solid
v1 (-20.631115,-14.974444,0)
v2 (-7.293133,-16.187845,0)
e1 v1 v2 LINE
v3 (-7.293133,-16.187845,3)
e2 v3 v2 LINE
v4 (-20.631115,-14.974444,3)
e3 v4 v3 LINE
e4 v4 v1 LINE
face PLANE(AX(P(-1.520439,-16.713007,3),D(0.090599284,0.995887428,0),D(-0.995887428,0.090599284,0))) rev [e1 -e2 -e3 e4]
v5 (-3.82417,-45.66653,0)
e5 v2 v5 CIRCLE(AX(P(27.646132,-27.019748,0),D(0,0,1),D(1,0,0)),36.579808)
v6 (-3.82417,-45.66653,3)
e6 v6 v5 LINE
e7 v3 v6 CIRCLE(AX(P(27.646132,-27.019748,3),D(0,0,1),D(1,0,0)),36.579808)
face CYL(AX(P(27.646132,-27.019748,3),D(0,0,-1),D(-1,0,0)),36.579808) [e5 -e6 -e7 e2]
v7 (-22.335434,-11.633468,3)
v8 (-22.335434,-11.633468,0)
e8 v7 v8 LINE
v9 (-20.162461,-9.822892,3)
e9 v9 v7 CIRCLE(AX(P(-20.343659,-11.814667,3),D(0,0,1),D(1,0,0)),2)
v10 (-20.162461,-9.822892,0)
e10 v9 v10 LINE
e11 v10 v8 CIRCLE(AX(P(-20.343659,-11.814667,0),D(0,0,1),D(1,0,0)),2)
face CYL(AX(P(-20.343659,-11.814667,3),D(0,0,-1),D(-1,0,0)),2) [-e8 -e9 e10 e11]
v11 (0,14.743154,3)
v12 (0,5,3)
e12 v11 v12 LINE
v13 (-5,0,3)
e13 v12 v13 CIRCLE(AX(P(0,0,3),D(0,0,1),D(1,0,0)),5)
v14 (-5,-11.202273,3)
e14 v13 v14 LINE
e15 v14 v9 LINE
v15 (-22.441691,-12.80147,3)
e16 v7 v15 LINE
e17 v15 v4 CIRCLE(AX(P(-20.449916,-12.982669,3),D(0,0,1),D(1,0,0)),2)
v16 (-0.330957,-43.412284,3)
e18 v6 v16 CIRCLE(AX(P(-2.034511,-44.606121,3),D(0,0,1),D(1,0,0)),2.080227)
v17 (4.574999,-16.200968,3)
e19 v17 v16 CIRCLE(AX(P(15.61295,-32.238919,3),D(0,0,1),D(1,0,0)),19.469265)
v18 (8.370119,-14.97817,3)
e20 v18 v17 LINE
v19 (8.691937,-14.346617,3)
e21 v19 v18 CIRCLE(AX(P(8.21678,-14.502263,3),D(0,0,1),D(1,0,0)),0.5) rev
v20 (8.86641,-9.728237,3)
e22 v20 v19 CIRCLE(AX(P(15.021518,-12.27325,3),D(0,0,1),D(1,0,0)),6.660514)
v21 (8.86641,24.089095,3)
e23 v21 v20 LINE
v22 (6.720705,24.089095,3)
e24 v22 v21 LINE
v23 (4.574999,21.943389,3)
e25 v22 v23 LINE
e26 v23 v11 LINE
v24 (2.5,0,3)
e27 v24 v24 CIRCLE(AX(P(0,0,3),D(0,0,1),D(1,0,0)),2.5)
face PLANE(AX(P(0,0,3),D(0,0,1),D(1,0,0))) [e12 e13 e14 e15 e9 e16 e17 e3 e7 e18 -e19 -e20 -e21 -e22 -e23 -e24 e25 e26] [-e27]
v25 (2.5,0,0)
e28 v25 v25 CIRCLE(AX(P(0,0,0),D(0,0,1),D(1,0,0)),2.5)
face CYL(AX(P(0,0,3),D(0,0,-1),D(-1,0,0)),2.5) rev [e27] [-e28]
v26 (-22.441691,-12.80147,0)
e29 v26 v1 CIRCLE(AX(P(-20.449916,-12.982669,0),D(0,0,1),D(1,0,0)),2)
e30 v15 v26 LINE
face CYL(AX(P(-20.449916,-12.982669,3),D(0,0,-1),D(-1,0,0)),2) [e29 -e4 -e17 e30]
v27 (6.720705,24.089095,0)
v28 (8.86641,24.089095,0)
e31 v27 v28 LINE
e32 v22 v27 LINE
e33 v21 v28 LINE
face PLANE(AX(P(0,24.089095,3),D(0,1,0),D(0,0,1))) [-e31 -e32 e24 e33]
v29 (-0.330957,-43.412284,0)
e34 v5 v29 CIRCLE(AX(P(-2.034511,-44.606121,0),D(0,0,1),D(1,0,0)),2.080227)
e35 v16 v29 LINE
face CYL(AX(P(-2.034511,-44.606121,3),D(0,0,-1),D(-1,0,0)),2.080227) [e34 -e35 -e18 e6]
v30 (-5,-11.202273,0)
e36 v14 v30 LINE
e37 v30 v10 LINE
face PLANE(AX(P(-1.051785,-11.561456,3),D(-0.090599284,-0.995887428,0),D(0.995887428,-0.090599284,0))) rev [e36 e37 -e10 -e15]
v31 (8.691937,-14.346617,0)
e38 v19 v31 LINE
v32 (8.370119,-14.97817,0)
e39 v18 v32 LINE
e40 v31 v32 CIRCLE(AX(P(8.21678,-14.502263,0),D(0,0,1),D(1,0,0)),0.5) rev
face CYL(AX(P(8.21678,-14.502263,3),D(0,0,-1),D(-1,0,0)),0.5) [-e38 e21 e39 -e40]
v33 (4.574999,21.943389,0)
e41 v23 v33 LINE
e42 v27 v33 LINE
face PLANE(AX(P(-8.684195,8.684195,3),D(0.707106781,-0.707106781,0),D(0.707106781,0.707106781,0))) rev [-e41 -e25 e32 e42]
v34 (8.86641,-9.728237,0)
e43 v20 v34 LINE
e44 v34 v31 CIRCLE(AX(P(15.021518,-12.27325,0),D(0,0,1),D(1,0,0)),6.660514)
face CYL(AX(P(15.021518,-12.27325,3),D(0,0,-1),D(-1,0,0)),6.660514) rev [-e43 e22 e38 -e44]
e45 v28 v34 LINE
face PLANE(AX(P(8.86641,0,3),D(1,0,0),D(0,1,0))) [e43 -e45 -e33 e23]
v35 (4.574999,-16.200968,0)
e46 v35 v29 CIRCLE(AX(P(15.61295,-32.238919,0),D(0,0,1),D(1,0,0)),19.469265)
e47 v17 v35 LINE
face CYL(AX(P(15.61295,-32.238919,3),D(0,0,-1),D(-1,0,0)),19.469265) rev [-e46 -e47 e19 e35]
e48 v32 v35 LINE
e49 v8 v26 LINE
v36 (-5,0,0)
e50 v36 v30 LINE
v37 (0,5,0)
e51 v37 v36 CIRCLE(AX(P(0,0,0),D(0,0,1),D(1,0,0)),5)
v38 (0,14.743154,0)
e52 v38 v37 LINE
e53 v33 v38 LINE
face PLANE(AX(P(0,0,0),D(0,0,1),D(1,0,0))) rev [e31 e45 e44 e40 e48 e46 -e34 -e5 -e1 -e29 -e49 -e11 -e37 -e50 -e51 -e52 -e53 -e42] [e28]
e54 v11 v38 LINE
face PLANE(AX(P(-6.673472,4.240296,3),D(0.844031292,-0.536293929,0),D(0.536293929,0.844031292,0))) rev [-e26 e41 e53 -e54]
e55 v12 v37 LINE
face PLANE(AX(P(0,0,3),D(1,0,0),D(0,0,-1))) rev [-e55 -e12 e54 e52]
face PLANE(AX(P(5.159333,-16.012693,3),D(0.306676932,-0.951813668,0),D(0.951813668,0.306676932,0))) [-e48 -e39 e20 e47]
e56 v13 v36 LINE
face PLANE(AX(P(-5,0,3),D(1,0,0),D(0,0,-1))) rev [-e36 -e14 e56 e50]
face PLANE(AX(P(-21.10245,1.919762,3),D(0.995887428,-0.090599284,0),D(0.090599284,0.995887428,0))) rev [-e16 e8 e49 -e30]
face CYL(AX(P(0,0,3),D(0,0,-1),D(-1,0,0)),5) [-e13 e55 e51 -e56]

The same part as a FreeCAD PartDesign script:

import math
import FreeCAD as App
import Part
import Sketcher

V = App.Vector
Q = App.Units.Quantity

doc = App.newDocument("Part")
body = doc.addObject("PartDesign::Body", "Body")

sketch1 = body.newObject("Sketcher::SketchObject", "Sketch")
sketch1.AttachmentSupport = (doc.getObject("XY_Plane"), [""])
sketch1.MapMode = "FlatFace"
sketch1.addGeometry([
    Part.LineSegment(V(4.574999, 21.943389, 0), V(0, 14.743154, 0)),
    Part.LineSegment(V(0, 14.743154, 0), V(0, 5, 0)),
    Part.ArcOfCircle(Part.Circle(V(0, 0, 0), V(0, 0, 1), 5), math.radians(90), math.radians(180)),
    Part.LineSegment(V(-5, 0, 0), V(-5, -11.202273, 0)),
    Part.LineSegment(V(-5, -11.202273, 0), V(-20.162461, -9.822892, 0)),
    Part.ArcOfCircle(Part.Circle(V(-20.343659, -11.814667, 0), V(0, 0, 1), 2), math.radians(84.801916), math.radians(174.801916)),
    Part.LineSegment(V(-22.335434, -11.633468, 0), V(-22.441691, -12.80147, 0)),
    Part.ArcOfCircle(Part.Circle(V(-20.449916, -12.982669, 0), V(0, 0, 1), 2), math.radians(174.801916), math.radians(264.801916)),
    Part.LineSegment(V(-20.631115, -14.974444, 0), V(-7.293133, -16.187845, 0)),
    Part.ArcOfCircle(Part.Circle(V(27.646132, -27.019748, 0), V(0, 0, 1), 36.579808), math.radians(162.775472), math.radians(210.647588)),
    Part.ArcOfCircle(Part.Circle(V(-2.034511, -44.606121, 0), V(0, 0, 1), 2.080227), math.radians(-149.352412), math.radians(35.022469)),
    Part.ArcOfCircle(Part.Circle(V(15.61295, -32.238919, 0), V(0, 0, 1), 19.469265), math.radians(124.537284), math.radians(215.022469)),
    Part.LineSegment(V(4.574999, -16.200968, 0), V(8.370119, -14.97817, 0)),
    Part.ArcOfCircle(Part.Circle(V(8.21678, -14.502263, 0), V(0, 0, 1), 0.5), math.radians(-72.140919), math.radians(18.137128)),
    Part.ArcOfCircle(Part.Circle(V(15.021518, -12.27325, 0), V(0, 0, 1), 6.660514), math.radians(157.535891), math.radians(198.137128)),
    Part.LineSegment(V(8.86641, -9.728237, 0), V(8.86641, 24.089095, 0)),
    Part.LineSegment(V(8.86641, 24.089095, 0), V(6.720705, 24.089095, 0)),
    Part.LineSegment(V(6.720705, 24.089095, 0), V(4.574999, 21.943389, 0)),
    Part.Circle(V(0, 0, 0), V(0, 0, 1), 2.5),
], False)
sketch1.addConstraint([
    Sketcher.Constraint("Coincident", 0, 2, 1, 1),
    Sketcher.Constraint("Coincident", 1, 2, 2, 1),
    Sketcher.Constraint("Coincident", 2, 2, 3, 1),
    Sketcher.Constraint("Coincident", 3, 2, 4, 1),
    Sketcher.Constraint("Coincident", 4, 2, 5, 1),
    Sketcher.Constraint("Coincident", 5, 2, 6, 1),
    Sketcher.Constraint("Coincident", 6, 2, 7, 1),
    Sketcher.Constraint("Coincident", 7, 2, 8, 1),
    Sketcher.Constraint("Coincident", 8, 2, 9, 1),
    Sketcher.Constraint("Coincident", 9, 2, 10, 1),
    Sketcher.Constraint("Coincident", 10, 2, 11, 2),
    Sketcher.Constraint("Coincident", 11, 1, 12, 1),
    Sketcher.Constraint("Coincident", 12, 2, 13, 1),
    Sketcher.Constraint("Coincident", 13, 2, 14, 2),
    Sketcher.Constraint("Coincident", 14, 1, 15, 1),
    Sketcher.Constraint("Coincident", 15, 2, 16, 1),
    Sketcher.Constraint("Coincident", 16, 2, 17, 1),
    Sketcher.Constraint("Coincident", 17, 2, 0, 1),
    Sketcher.Constraint("Vertical", 1),
    Sketcher.Constraint("Vertical", 3),
    Sketcher.Constraint("Vertical", 15),
    Sketcher.Constraint("Horizontal", 16),
    Sketcher.Constraint("Coincident", 2, 3, -1, 1),
    Sketcher.Constraint("Coincident", 18, 3, -1, 1),
    Sketcher.Constraint("PointOnObject", 0, 2, -2),
    Sketcher.Constraint("PointOnObject", 2, 2, -1),
    Sketcher.Constraint("Diameter", 18, Q("5 mm")),
    Sketcher.Constraint("Radius", 2, Q("5 mm")),
    Sketcher.Constraint("Radius", 5, Q("2 mm")),
    Sketcher.Constraint("Radius", 7, Q("2 mm")),
    Sketcher.Constraint("Radius", 13, Q("0.5 mm")),
    Sketcher.Constraint("Radius", 9, Q("36.579808 mm")),
    Sketcher.Constraint("DistanceX", -1, 1, 11, 1, Q("4.574999 mm")),
    Sketcher.Constraint("DistanceX", -1, 1, 17, 2, Q("4.574999 mm")),
    Sketcher.Constraint("Radius", 10, Q("2.080227 mm")),
    Sketcher.Constraint("Radius", 11, Q("19.469265 mm")),
    Sketcher.Constraint("Radius", 14, Q("6.660514 mm")),
    Sketcher.Constraint("DistanceY", 7, 3, 5, 3, Q("1.168002 mm")),
    Sketcher.Constraint("DistanceY", 6, 2, 5, 2, Q("1.168002 mm")),
    Sketcher.Constraint("DistanceY", 15, 1, 15, 2, Q("33.817332 mm")),
    Sketcher.Constraint("DistanceX", 5, 3, 4, 2, Q("0.181199 mm")),
    Sketcher.Constraint("DistanceY", 5, 3, 5, 2, Q("0.181199 mm")),
    Sketcher.Constraint("DistanceX", 7, 2, 7, 3, Q("0.181199 mm")),
    Sketcher.Constraint("DistanceY", 8, 2, 7, 2, Q("1.213402 mm")),
    Sketcher.Constraint("DistanceX", 12, 2, 14, 3, Q("6.6514 mm")),
    Sketcher.Constraint("Distance", 8, Q("13.393062 mm")),
    Sketcher.Constraint("Distance", 12, Q("3.987251 mm")),
    Sketcher.Constraint("DistanceX", 16, 2, 16, 1, Q("2.145706 mm")),
    Sketcher.Constraint("DistanceY", 1, 2, 1, 1, Q("9.743154 mm")),
    Sketcher.Constraint("DistanceY", 3, 2, 3, 1, Q("11.202273 mm")),
    Sketcher.Constraint("DistanceX", 5, 3, -1, 1, Q("20.343659 mm")),
    Sketcher.Constraint("DistanceY", 7, 3, -1, 1, Q("12.982669 mm")),
    Sketcher.Constraint("DistanceX", 10, 3, -1, 1, Q("2.034511 mm")),
    Sketcher.Constraint("DistanceY", 10, 3, -1, 1, Q("44.606121 mm")),
    Sketcher.Constraint("DistanceX", -1, 1, 11, 3, Q("15.61295 mm")),
    Sketcher.Constraint("DistanceX", -1, 1, 13, 3, Q("8.21678 mm")),
    Sketcher.Constraint("DistanceX", -1, 1, 14, 3, Q("15.021518 mm")),
    Sketcher.Constraint("DistanceX", 6, 2, -1, 1, Q("22.441691 mm")),
    Sketcher.Constraint("DistanceX", 9, 2, -1, 1, Q("3.82417 mm")),
    Sketcher.Constraint("DistanceX", -1, 1, 14, 1, Q("8.86641 mm")),
    Sketcher.Constraint("DistanceY", -1, 1, 17, 2, Q("21.943389 mm")),
    Sketcher.Constraint("DistanceY", 10, 2, 8, 2, Q("27.224439 mm")),
    Sketcher.Constraint("DistanceX", 12, 2, 13, 2, Q("0.321819 mm")),
])
pad1 = body.newObject("PartDesign::Pad", "Pad")
pad1.Profile = sketch1
pad1.Length = 3

doc.recompute()
